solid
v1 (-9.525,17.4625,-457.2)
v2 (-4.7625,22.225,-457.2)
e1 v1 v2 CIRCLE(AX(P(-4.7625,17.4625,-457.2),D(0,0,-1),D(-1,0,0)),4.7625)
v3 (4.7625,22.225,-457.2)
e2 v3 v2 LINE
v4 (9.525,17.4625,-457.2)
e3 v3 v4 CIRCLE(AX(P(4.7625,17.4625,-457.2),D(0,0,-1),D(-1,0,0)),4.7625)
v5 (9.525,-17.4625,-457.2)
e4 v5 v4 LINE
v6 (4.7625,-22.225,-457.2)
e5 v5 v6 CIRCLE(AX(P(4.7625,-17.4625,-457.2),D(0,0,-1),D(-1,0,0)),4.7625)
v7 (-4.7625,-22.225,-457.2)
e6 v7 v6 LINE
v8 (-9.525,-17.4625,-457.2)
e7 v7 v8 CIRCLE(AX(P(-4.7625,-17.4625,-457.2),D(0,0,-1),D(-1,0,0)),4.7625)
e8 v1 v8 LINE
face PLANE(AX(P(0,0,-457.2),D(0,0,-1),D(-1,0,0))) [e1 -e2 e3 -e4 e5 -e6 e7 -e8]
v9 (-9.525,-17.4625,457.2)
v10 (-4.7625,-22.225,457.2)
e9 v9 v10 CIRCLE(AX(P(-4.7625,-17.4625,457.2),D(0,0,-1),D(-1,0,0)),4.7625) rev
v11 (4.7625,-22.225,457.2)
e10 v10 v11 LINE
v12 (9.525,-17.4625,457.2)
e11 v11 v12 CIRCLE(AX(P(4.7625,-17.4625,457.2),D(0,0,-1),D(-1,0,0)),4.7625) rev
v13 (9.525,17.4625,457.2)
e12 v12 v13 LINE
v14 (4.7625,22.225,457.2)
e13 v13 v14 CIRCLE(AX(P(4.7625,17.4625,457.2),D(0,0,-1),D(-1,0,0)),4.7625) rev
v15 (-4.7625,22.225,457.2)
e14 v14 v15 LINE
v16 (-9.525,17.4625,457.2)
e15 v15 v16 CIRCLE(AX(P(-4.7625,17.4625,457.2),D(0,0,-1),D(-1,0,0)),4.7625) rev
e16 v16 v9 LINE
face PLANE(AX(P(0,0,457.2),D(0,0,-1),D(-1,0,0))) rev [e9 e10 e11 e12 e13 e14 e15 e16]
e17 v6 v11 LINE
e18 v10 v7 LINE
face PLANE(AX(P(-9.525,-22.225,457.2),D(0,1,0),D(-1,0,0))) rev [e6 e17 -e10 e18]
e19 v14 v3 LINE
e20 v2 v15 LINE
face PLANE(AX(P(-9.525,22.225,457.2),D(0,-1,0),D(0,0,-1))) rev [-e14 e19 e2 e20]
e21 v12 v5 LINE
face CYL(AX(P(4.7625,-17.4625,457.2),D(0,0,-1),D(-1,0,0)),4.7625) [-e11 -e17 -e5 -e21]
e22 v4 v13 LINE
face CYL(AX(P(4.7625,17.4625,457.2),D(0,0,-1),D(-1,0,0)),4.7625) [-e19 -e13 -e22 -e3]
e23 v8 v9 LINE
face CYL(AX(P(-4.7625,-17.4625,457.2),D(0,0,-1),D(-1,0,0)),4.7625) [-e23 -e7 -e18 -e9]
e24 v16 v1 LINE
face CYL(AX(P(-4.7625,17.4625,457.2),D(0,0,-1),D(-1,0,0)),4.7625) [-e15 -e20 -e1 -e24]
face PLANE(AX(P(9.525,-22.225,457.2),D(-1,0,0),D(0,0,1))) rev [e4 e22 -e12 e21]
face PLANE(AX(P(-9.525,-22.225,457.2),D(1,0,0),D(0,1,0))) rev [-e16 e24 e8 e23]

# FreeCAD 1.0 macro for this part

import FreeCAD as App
import Part
import Sketcher

V = App.Vector
Q = App.Units.Quantity


def edges_at(feature, points):
    """Names of the edges that pass closest to the given points."""
    edges = feature.Shape.Edges
    near = lambda p: min(range(len(edges)), key=lambda i: edges[i].distToShape(Part.Vertex(*p))[0])
    return sorted({f"Edge{near(p) + 1}" for p in points})


def add_polygon(sketch, points):
    """Adds a closed chain of lines whose ends are joined by coincident constraints."""
    first, n = sketch.GeometryCount, len(points)
    for a, b in zip(points, points[1:] + points[:1]):
        sketch.addGeometry(Part.LineSegment(App.Vector(*a, 0), App.Vector(*b, 0)), False)
    for i in range(n):
        sketch.addConstraint(Sketcher.Constraint("Coincident", first + i, 2, first + (i + 1) % n, 1))

doc = App.newDocument("Part")
body = doc.addObject("PartDesign::Body", "Body")

# Sketch on XY plane
sketch1 = body.newObject("Sketcher::SketchObject", "Sketch")
sketch1.AttachmentSupport = (doc.getObject("XY_Plane"), [""])
sketch1.MapMode = "FlatFace"
add_polygon(sketch1, [(-10, 22), (-10, -22), (10, -22), (10, 22)])  # lines 0-3
sketch1.addConstraint(Sketcher.Constraint("Vertical", 0))
sketch1.addConstraint(Sketcher.Constraint("Horizontal", 1))
sketch1.addConstraint(Sketcher.Constraint("Vertical", 2))
sketch1.addConstraint(Sketcher.Constraint("Horizontal", 3))
sketch1.addConstraint(Sketcher.Constraint("Symmetric", 0, 2, 2, 2, -1, 1))
sketch1.addConstraint(Sketcher.Constraint("DistanceX", 1, 1, 1, 2, Q("0.75 in")))
sketch1.addConstraint(Sketcher.Constraint("DistanceY", 0, 2, 0, 1, Q("1.75 in")))
pad1 = body.newObject("PartDesign::Pad", "Pad")
pad1.Profile = sketch1
pad1.Type = "TwoLengths"
pad1.Length = Q("18 in")
pad1.Length2 = Q("18 in")
doc.recompute()

fillet = body.newObject("PartDesign::Fillet", "Fillet")
fillet.Base = (pad1, edges_at(pad1, [
    (9.525, -22.225, 0),
    (-9.525, -22.225, 0),
    (-9.525, 22.225, 0),
    (9.525, 22.225, 0),
]))
fillet.Radius = Q("0.1875 in")

doc.recompute()
